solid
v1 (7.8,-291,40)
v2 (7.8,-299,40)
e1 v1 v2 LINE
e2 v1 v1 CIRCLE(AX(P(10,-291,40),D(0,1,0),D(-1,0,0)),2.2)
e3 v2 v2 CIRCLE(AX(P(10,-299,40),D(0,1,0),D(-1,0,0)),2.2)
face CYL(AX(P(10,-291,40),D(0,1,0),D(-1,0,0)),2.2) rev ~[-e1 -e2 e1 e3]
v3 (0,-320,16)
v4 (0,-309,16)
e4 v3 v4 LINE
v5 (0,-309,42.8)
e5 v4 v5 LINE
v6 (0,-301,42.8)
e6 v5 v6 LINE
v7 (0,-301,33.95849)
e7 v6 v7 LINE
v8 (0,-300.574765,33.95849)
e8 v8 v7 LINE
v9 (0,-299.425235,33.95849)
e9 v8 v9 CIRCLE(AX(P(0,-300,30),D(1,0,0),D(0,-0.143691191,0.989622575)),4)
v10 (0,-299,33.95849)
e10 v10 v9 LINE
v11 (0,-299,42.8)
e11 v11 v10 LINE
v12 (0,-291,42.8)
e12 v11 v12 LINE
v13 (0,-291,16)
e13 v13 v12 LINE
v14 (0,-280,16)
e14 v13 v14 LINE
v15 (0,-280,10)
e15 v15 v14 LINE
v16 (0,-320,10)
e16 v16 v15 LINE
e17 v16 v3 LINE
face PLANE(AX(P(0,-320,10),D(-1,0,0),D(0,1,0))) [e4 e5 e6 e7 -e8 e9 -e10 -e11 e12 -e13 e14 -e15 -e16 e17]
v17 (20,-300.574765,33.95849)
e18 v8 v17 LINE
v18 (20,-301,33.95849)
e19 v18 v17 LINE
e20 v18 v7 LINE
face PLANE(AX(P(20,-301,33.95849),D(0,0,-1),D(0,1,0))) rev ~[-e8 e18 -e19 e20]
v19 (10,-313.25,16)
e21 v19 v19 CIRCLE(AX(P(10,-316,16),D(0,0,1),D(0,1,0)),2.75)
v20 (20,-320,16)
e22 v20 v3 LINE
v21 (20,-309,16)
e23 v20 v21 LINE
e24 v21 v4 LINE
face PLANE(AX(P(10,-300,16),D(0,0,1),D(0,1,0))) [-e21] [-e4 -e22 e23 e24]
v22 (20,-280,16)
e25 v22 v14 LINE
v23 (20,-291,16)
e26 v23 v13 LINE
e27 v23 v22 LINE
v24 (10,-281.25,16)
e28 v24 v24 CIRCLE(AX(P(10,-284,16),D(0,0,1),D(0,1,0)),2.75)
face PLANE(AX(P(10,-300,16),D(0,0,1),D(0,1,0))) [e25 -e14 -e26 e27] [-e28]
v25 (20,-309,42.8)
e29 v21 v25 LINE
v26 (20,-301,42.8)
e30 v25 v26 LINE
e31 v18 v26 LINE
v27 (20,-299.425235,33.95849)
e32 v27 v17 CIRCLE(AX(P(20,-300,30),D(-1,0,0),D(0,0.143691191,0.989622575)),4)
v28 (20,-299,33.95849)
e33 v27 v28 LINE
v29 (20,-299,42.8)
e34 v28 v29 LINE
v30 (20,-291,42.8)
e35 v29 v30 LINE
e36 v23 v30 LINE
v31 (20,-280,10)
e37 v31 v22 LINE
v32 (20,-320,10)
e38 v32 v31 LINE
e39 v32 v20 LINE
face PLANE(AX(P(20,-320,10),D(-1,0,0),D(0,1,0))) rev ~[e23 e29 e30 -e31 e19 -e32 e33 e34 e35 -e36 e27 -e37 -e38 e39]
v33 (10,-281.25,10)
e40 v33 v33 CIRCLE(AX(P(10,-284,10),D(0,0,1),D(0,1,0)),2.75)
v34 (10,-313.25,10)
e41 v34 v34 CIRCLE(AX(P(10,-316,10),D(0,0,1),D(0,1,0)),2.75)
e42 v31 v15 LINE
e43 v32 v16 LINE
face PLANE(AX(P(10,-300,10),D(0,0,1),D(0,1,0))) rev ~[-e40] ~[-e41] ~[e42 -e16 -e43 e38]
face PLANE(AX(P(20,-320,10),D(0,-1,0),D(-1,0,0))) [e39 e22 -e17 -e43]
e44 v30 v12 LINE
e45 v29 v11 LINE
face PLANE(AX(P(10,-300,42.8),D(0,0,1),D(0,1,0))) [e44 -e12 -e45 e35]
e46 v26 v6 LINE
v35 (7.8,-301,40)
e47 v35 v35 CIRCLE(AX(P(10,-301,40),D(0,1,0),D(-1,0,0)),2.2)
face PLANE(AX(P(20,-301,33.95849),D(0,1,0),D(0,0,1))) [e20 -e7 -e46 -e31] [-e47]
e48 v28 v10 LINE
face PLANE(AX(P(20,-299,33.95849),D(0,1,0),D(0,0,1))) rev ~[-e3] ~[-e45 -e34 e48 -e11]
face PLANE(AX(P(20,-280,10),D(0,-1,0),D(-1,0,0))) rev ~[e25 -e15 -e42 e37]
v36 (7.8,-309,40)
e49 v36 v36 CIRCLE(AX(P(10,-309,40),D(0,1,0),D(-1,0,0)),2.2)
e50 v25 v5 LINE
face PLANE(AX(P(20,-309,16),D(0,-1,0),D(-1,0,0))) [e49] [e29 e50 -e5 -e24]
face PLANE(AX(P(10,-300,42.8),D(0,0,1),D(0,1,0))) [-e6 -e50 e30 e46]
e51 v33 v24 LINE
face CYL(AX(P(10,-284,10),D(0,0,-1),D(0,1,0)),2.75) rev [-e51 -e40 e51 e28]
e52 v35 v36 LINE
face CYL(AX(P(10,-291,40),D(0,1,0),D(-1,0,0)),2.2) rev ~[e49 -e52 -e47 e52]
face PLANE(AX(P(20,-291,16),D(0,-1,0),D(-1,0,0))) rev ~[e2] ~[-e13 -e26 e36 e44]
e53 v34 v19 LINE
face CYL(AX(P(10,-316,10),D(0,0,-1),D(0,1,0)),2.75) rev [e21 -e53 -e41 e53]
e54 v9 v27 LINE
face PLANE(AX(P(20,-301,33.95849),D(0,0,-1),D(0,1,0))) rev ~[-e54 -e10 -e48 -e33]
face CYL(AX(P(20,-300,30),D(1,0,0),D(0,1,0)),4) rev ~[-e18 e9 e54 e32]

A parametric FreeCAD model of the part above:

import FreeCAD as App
import Part
import Sketcher
from FreeCAD import Vector

doc = App.newDocument("Part")
body = doc.addObject("PartDesign::Body", "Body")

# Sketch on XY plane
sketch1 = doc.addObject("Sketcher::SketchObject", "Sketch")
body.addObject(sketch1)
sketch1.AttachmentSupport = (doc.XY_Plane, [""])
sketch1.MapMode = "FlatFace"
sketch1.addGeometry(Part.LineSegment(Vector(-20, 10, 0), Vector(-20, -10, 0)), False)
sketch1.addGeometry(Part.LineSegment(Vector(-20, -10, 0), Vector(20, -10, 0)), False)
sketch1.addGeometry(Part.LineSegment(Vector(20, -10, 0), Vector(20, 10, 0)), False)
sketch1.addGeometry(Part.LineSegment(Vector(20, 10, 0), Vector(-20, 10, 0)), False)
sketch1.addGeometry(Part.Circle(Vector(-16, 0, 0), Vector(0, 0, 1), 2.8), False)
sketch1.addGeometry(Part.Circle(Vector(16, 0, 0), Vector(0, 0, 1), 2.8), False)
sketch1.addConstraint(Sketcher.Constraint("Coincident", 0, 2, 1, 1))
sketch1.addConstraint(Sketcher.Constraint("Coincident", 1, 2, 2, 1))
sketch1.addConstraint(Sketcher.Constraint("Coincident", 2, 2, 3, 1))
sketch1.addConstraint(Sketcher.Constraint("Coincident", 3, 2, 0, 1))
sketch1.addConstraint(Sketcher.Constraint("Vertical", 0))
sketch1.addConstraint(Sketcher.Constraint("Horizontal", 1))
sketch1.addConstraint(Sketcher.Constraint("Vertical", 2))
sketch1.addConstraint(Sketcher.Constraint("Horizontal", 3))
sketch1.addConstraint(Sketcher.Constraint("Equal", 4, 5))
sketch1.addConstraint(Sketcher.Constraint("Symmetric", 4, 3, 5, 3, -1, 1))
sketch1.addConstraint(Sketcher.Constraint("Symmetric", 0, 2, 2, 2, -1, 1))
sketch1.addConstraint(Sketcher.Constraint("PointOnObject", 4, 3, -1))
sketch1.addConstraint(Sketcher.Constraint("Diameter", 4, 5.5))
sketch1.addConstraint(Sketcher.Constraint("DistanceX", 1, 1, 1, 2, 40.0))
sketch1.addConstraint(Sketcher.Constraint("DistanceY", 0, 2, 0, 1, 20.0))
sketch1.addConstraint(Sketcher.Constraint("DistanceX", 4, 3, -1, 1, 16.0))
pad1 = doc.addObject("PartDesign::Pad", "Pad")
body.addObject(pad1)
pad1.Profile = sketch1
pad1.Length = 6

# Sketch on XY plane
sketch2 = doc.addObject("Sketcher::SketchObject", "Sketch001")
body.addObject(sketch2)
sketch2.AttachmentSupport = (doc.XY_Plane, [""])
sketch2.MapMode = "FlatFace"
sketch2.AttachmentOffset = App.Placement(Vector(0, 0, 6), App.Rotation())
sketch2.addGeometry(Part.LineSegment(Vector(-9, 10, 0), Vector(-9, -10, 0)), False)
sketch2.addGeometry(Part.LineSegment(Vector(-9, -10, 0), Vector(9, -10, 0)), False)
sketch2.addGeometry(Part.LineSegment(Vector(9, -10, 0), Vector(9, 10, 0)), False)
sketch2.addGeometry(Part.LineSegment(Vector(9, 10, 0), Vector(-9, 10, 0)), False)
sketch2.addConstraint(Sketcher.Constraint("Coincident", 0, 2, 1, 1))
sketch2.addConstraint(Sketcher.Constraint("Coincident", 1, 2, 2, 1))
sketch2.addConstraint(Sketcher.Constraint("Coincident", 2, 2, 3, 1))
sketch2.addConstraint(Sketcher.Constraint("Coincident", 3, 2, 0, 1))
sketch2.addConstraint(Sketcher.Constraint("Vertical", 0))
sketch2.addConstraint(Sketcher.Constraint("Horizontal", 1))
sketch2.addConstraint(Sketcher.Constraint("Vertical", 2))
sketch2.addConstraint(Sketcher.Constraint("Horizontal", 3))
sketch2.addConstraint(Sketcher.Constraint("Symmetric", 0, 2, 2, 2, -1, 1))
sketch2.addConstraint(Sketcher.Constraint("DistanceX", 1, 1, 1, 2, 18.0))
sketch2.addConstraint(Sketcher.Constraint("DistanceY", 0, 2, 0, 1, 20.0))
pad2 = doc.addObject("PartDesign::Pad", "Pad001")
body.addObject(pad2)
pad2.Profile = sketch2
pad2.Length = 26.8

# Sketch on XZ plane
sketch3 = doc.addObject("Sketcher::SketchObject", "Sketch002")
body.addObject(sketch3)
sketch3.AttachmentSupport = (doc.XZ_Plane, [""])
sketch3.MapMode = "FlatFace"
sketch3.AttachmentOffset = App.Placement(Vector(0, 0, 10), App.Rotation())
sketch3.addGeometry(Part.Circle(Vector(0, 20, 0), Vector(0, 0, 1), 4), False)
sketch3.addConstraint(Sketcher.Constraint("PointOnObject", 0, 3, -2))
sketch3.addConstraint(Sketcher.Constraint("Diameter", 0, 8.0))
sketch3.addConstraint(Sketcher.Constraint("DistanceY", -1, 1, 0, 3, 20.0))
pocket1 = doc.addObject("PartDesign::Pocket", "Pocket")
body.addObject(pocket1)
pocket1.Profile = sketch3
pocket1.Type = "ThroughAll"

# Sketch on XZ plane
sketch4 = doc.addObject("Sketcher::SketchObject", "Sketch003")
body.addObject(sketch4)
sketch4.AttachmentSupport = (doc.XZ_Plane, [""])
sketch4.MapMode = "FlatFace"
sketch4.AttachmentOffset = App.Placement(Vector(0, 0, 10), App.Rotation())
sketch4.addGeometry(Part.LineSegment(Vector(-1, 32.8, 0), Vector(-1, 24, 0)), False)
sketch4.addGeometry(Part.LineSegment(Vector(-1, 24, 0), Vector(1, 24, 0)), False)
sketch4.addGeometry(Part.LineSegment(Vector(1, 24, 0), Vector(1, 32.8, 0)), False)
sketch4.addGeometry(Part.LineSegment(Vector(1, 32.8, 0), Vector(-1, 32.8, 0)), False)
sketch4.addConstraint(Sketcher.Constraint("Coincident", 0, 2, 1, 1))
sketch4.addConstraint(Sketcher.Constraint("Coincident", 1, 2, 2, 1))
sketch4.addConstraint(Sketcher.Constraint("Coincident", 2, 2, 3, 1))
sketch4.addConstraint(Sketcher.Constraint("Coincident", 3, 2, 0, 1))
sketch4.addConstraint(Sketcher.Constraint("Vertical", 0))
sketch4.addConstraint(Sketcher.Constraint("Horizontal", 1))
sketch4.addConstraint(Sketcher.Constraint("Vertical", 2))
sketch4.addConstraint(Sketcher.Constraint("Horizontal", 3))
sketch4.addConstraint(Sketcher.Constraint("DistanceX", 1, 1, 1, 2, 2.0))
sketch4.addConstraint(Sketcher.Constraint("DistanceX", 0, 2, -1, 1, 1.0))
sketch4.addConstraint(Sketcher.Constraint("DistanceY", -1, 1, 2, 2, 32.8))
sketch4.addConstraint(Sketcher.Constraint("DistanceY", 0, 2, 0, 1, 8.84151))
pocket2 = doc.addObject("PartDesign::Pocket", "Pocket001")
body.addObject(pocket2)
pocket2.Profile = sketch4
pocket2.Type = "ThroughAll"

# Sketch on YZ plane
sketch5 = doc.addObject("Sketcher::SketchObject", "Sketch004")
body.addObject(sketch5)
sketch5.AttachmentSupport = (doc.YZ_Plane, [""])
sketch5.MapMode = "FlatFace"
sketch5.AttachmentOffset = App.Placement(Vector(0, 0, 9), App.Rotation())
sketch5.addGeometry(Part.Circle(Vector(0, 30, 0), Vector(0, 0, 1), 2.2), False)
sketch5.addConstraint(Sketcher.Constraint("PointOnObject", 0, 3, -2))
sketch5.addConstraint(Sketcher.Constraint("Diameter", 0, 4.4))
sketch5.addConstraint(Sketcher.Constraint("DistanceY", -1, 1, 0, 3, 30.0))
pocket3 = doc.addObject("PartDesign::Pocket", "Pocket002")
body.addObject(pocket3)
pocket3.Profile = sketch5
pocket3.Type = "ThroughAll"
body2 = doc.addObject("PartDesign::Body", "Body001")
doc.recompute()

body.Placement = App.Placement(Vector(10, -100, 10), App.Rotation(Vector(0, 0, 1), 90))
boolean = doc.addObject("PartDesign::Boolean", "Boolean")
body2.addObject(boolean)
boolean.Type = "Fuse"
boolean.addObjects([body])
body3 = doc.addObject("PartDesign::Body", "Body002")
doc.recompute()

body2.Placement = App.Placement(Vector(0, -200, 0), App.Rotation(Vector(0, 0, 1), 0))
boolean2 = doc.addObject("PartDesign::Boolean", "Boolean001")
body3.addObject(boolean2)
boolean2.Type = "Fuse"
boolean2.addObjects([body2])

doc.recompute()
